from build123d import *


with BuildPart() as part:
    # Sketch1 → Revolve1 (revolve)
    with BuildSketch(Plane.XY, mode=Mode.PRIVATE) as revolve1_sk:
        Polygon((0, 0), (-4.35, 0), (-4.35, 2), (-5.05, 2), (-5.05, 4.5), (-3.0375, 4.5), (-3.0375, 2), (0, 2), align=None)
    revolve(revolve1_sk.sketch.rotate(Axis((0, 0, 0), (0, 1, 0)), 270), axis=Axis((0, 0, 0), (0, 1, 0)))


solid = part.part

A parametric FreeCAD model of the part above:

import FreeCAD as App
import Part
import Sketcher

V = App.Vector

doc = App.newDocument("Part")
body = doc.addObject("PartDesign::Body", "Body")

# Sketch on XY plane
sketch1 = body.newObject("Sketcher::SketchObject", "Sketch")
sketch1.AttachmentSupport = (doc.getObject("XY_Plane"), [""])
sketch1.MapMode = "FlatFace"
sketch1.addGeometry(Part.LineSegment(V(-4.35, 0, 0), V(0, 0, 0)), False)
sketch1.addGeometry(Part.LineSegment(V(0, 0, 0), V(0, 2, 0)), False)
sketch1.addGeometry(Part.LineSegment(V(0, 2, 0), V(-3.0375, 2, 0)), False)
sketch1.addGeometry(Part.LineSegment(V(-3.0375, 2, 0), V(-3.0375, 4.5, 0)), False)
sketch1.addGeometry(Part.LineSegment(V(-3.0375, 4.5, 0), V(-5.05, 4.5, 0)), False)
sketch1.addGeometry(Part.LineSegment(V(-5.05, 4.5, 0), V(-5.05, 2, 0)), False)
sketch1.addGeometry(Part.LineSegment(V(-5.05, 2, 0), V(-4.35, 2, 0)), False)
sketch1.addGeometry(Part.LineSegment(V(-4.35, 2, 0), V(-4.35, 0, 0)), False)
sketch1.addConstraint(Sketcher.Constraint("Coincident", 0, 2, 1, 1))
sketch1.addConstraint(Sketcher.Constraint("Coincident", 1, 2, 2, 1))
sketch1.addConstraint(Sketcher.Constraint("Coincident", 2, 2, 3, 1))
sketch1.addConstraint(Sketcher.Constraint("Coincident", 3, 2, 4, 1))
sketch1.addConstraint(Sketcher.Constraint("Coincident", 4, 2, 5, 1))
sketch1.addConstraint(Sketcher.Constraint("Coincident", 5, 2, 6, 1))
sketch1.addConstraint(Sketcher.Constraint("Coincident", 6, 2, 7, 1))
sketch1.addConstraint(Sketcher.Constraint("Coincident", 7, 2, 0, 1))
sketch1.addConstraint(Sketcher.Constraint("Horizontal", 0))
sketch1.addConstraint(Sketcher.Constraint("Vertical", 1))
sketch1.addConstraint(Sketcher.Constraint("Horizontal", 2))
sketch1.addConstraint(Sketcher.Constraint("Vertical", 3))
sketch1.addConstraint(Sketcher.Constraint("Horizontal", 4))
sketch1.addConstraint(Sketcher.Constraint("Vertical", 5))
sketch1.addConstraint(Sketcher.Constraint("Horizontal", 6))
sketch1.addConstraint(Sketcher.Constraint("Vertical", 7))
sketch1.addConstraint(Sketcher.Constraint("Coincident", 0, 2, -1, 1))
sketch1.addConstraint(Sketcher.Constraint("Horizontal", 2, 2, 5, 2))
sketch1.addConstraint(Sketcher.Constraint("DistanceY", 1, 1, 1, 2, 2.0))
sketch1.addConstraint(Sketcher.Constraint("DistanceX", 6, 1, 6, 2, 0.7))
sketch1.addConstraint(Sketcher.Constraint("DistanceY", 3, 1, 3, 2, 2.5))
sketch1.addConstraint(Sketcher.Constraint("DistanceX", 0, 1, 0, 2, 4.35))
sketch1.addConstraint(Sketcher.Constraint("DistanceX", 2, 2, 2, 1, 3.0375))
revolution = body.newObject("PartDesign::Revolution", "Revolution")
revolution.Profile = sketch1
revolution.ReferenceAxis = (sketch1, ["V_Axis"])
revolution.Angle = 360

doc.recompute()
